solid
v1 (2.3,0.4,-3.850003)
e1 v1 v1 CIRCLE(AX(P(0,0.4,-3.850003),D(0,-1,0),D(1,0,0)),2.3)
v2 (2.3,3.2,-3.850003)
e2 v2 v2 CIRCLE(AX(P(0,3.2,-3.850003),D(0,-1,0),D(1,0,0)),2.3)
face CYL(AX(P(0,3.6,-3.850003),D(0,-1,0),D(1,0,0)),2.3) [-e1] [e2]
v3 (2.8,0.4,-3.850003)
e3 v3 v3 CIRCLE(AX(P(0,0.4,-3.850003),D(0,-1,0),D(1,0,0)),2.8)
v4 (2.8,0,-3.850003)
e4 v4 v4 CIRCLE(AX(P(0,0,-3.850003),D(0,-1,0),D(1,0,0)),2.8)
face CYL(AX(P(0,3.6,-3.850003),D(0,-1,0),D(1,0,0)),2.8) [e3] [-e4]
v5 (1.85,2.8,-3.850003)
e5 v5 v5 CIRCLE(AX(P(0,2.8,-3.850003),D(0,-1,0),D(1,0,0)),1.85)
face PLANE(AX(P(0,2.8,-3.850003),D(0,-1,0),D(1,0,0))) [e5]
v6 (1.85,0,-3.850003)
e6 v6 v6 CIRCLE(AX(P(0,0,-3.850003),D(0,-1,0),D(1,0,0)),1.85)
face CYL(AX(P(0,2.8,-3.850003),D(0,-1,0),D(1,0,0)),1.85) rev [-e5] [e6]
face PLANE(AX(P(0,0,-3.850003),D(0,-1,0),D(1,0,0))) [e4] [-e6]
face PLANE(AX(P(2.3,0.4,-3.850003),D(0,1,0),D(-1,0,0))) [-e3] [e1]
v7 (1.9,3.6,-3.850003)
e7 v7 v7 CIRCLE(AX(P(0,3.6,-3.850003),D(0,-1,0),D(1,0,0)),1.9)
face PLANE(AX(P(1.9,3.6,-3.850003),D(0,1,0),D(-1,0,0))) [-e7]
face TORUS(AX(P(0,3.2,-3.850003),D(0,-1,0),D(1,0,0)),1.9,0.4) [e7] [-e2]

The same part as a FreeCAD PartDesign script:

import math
import FreeCAD as App
import Part
import Sketcher

doc = App.newDocument("Part")
body = doc.addObject("PartDesign::Body", "Body")

# Sketch on XY plane
sketch1 = body.newObject("Sketcher::SketchObject", "Sketch")
sketch1.AttachmentSupport = (doc.getObject("XY_Plane"), [""])
sketch1.MapMode = "FlatFace"
sketch1.AttachmentOffset = App.Placement(App.Vector(0, 0, -3.850003), App.Rotation())
sketch1.addGeometry([
    Part.LineSegment(App.Vector(1.9, 3.6, 0), App.Vector(0, 3.6, 0)),  # 0
    Part.LineSegment(App.Vector(0, 3.6, 0), App.Vector(0, 0, 0)),  # 1
    Part.LineSegment(App.Vector(0, 0, 0), App.Vector(2.8, 0, 0)),  # 2
    Part.LineSegment(App.Vector(2.8, 0, 0), App.Vector(2.8, 0.4, 0)),  # 3
    Part.LineSegment(App.Vector(2.8, 0.4, 0), App.Vector(2.3, 0.4, 0)),  # 4
    Part.LineSegment(App.Vector(2.3, 0.4, 0), App.Vector(2.3, 3.2, 0)),  # 5
    Part.ArcOfCircle(Part.Circle(App.Vector(1.9, 3.2, 0), App.Vector(0, 0, 1), 0.4), math.radians(0), math.radians(90)),  # 6
], False)
sketch1.addConstraint([
    Sketcher.Constraint("Coincident", 0, 2, 1, 1),
    Sketcher.Constraint("Coincident", 1, 2, 2, 1),
    Sketcher.Constraint("Coincident", 2, 2, 3, 1),
    Sketcher.Constraint("Coincident", 3, 2, 4, 1),
    Sketcher.Constraint("Coincident", 4, 2, 5, 1),
    Sketcher.Constraint("Tangent", 5, 2, 6, 1),
    Sketcher.Constraint("Tangent", 6, 2, 0, 1),
    Sketcher.Constraint("Horizontal", 0),
    Sketcher.Constraint("Vertical", 1),
    Sketcher.Constraint("Horizontal", 2),
    Sketcher.Constraint("Vertical", 3),
    Sketcher.Constraint("Horizontal", 4),
    Sketcher.Constraint("Vertical", 5),
    Sketcher.Constraint("Coincident", 1, 2, -1, 1),
    Sketcher.Constraint("Equal", 2, 5),
    Sketcher.Constraint("Radius", 6, 0.4),
    Sketcher.Constraint("DistanceX", 0, 2, 0, 1, 1.9),
    Sketcher.Constraint("DistanceX", 2, 1, 2, 2, 2.8),
    Sketcher.Constraint("DistanceY", 1, 2, 1, 1, 3.6),
])
revolution = body.newObject("PartDesign::Revolution", "Revolution")
revolution.Profile = sketch1
revolution.ReferenceAxis = (sketch1, ["V_Axis"])
revolution.Angle = 360

# Sketch on XZ plane
sketch2 = body.newObject("Sketcher::SketchObject", "Sketch001")
sketch2.AttachmentSupport = (doc.getObject("XZ_Plane"), [""])
sketch2.MapMode = "FlatFace"
sketch2.addGeometry(Part.Circle(App.Vector(0, -3.9, 0), App.Vector(0, 0, 1), 1.9), False)
sketch2.addConstraint([
    Sketcher.Constraint("PointOnObject", 0, 3, -2),
    Sketcher.Constraint("Diameter", 0, 3.7),
    Sketcher.Constraint("DistanceY", 0, 3, -1, 1, 3.850003),
])
pocket1 = body.newObject("PartDesign::Pocket", "Pocket")
pocket1.Profile = sketch2
pocket1.Length = 2.8

doc.recompute()
